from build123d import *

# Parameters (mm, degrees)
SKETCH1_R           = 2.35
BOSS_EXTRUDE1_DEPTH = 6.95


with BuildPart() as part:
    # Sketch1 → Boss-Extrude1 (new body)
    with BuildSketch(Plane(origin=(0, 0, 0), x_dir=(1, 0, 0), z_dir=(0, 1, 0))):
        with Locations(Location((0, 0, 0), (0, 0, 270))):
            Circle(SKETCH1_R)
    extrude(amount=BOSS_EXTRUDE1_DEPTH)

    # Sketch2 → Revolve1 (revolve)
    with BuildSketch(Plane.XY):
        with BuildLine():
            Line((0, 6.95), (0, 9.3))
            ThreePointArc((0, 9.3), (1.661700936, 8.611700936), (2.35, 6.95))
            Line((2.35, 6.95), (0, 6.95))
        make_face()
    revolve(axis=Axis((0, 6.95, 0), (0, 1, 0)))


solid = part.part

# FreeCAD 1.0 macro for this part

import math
import FreeCAD as App
import Part
import Sketcher
from FreeCAD import Vector

doc = App.newDocument("Part")
body = doc.addObject("PartDesign::Body", "Body")

# Sketch on XZ plane
sketch1 = body.newObject("Sketcher::SketchObject", "Sketch")
sketch1.AttachmentSupport = (doc.getObject("XZ_Plane"), [""])
sketch1.MapMode = "FlatFace"
sketch1.addGeometry(Part.Circle(Vector(0, 0, 0), Vector(0, 0, 1), 2.4), False)
sketch1.addConstraint([
    Sketcher.Constraint("Coincident", 0, 3, -1, 1),
    Sketcher.Constraint("Diameter", 0, 4.7),
])
pad1 = body.newObject("PartDesign::Pad", "Pad")
pad1.Profile = sketch1
pad1.Length = 6.95
pad1.Reversed = True

# Sketch on XY plane
sketch2 = body.newObject("Sketcher::SketchObject", "Sketch001")
sketch2.AttachmentSupport = (doc.getObject("XY_Plane"), [""])
sketch2.MapMode = "FlatFace"
sketch2.addGeometry([
    Part.LineSegment(Vector(0, 9.3, 0), Vector(0, 7, 0)),
    Part.LineSegment(Vector(0, 7, 0), Vector(2.4, 7, 0)),
    Part.ArcOfCircle(Part.Circle(Vector(0, 7, 0), Vector(0, 0, 1), 2.3), math.radians(0), math.radians(90)),
], False)
sketch2.addConstraint([
    Sketcher.Constraint("Coincident", 0, 2, 1, 1),
    Sketcher.Constraint("Coincident", 1, 2, 2, 1),
    Sketcher.Constraint("Coincident", 2, 2, 0, 1),
    Sketcher.Constraint("Vertical", 0),
    Sketcher.Constraint("Horizontal", 1),
    Sketcher.Constraint("Coincident", 0, 2, 2, 3),
    Sketcher.Constraint("PointOnObject", 2, 3, -2),
    Sketcher.Constraint("Radius", 2, 2.35),
    Sketcher.Constraint("DistanceY", -1, 1, 2, 2, 9.3),
])
revolution = body.newObject("PartDesign::Revolution", "Revolution")
revolution.Profile = sketch2
revolution.ReferenceAxis = (sketch2, ["V_Axis"])
revolution.Angle = 360

doc.recompute()
